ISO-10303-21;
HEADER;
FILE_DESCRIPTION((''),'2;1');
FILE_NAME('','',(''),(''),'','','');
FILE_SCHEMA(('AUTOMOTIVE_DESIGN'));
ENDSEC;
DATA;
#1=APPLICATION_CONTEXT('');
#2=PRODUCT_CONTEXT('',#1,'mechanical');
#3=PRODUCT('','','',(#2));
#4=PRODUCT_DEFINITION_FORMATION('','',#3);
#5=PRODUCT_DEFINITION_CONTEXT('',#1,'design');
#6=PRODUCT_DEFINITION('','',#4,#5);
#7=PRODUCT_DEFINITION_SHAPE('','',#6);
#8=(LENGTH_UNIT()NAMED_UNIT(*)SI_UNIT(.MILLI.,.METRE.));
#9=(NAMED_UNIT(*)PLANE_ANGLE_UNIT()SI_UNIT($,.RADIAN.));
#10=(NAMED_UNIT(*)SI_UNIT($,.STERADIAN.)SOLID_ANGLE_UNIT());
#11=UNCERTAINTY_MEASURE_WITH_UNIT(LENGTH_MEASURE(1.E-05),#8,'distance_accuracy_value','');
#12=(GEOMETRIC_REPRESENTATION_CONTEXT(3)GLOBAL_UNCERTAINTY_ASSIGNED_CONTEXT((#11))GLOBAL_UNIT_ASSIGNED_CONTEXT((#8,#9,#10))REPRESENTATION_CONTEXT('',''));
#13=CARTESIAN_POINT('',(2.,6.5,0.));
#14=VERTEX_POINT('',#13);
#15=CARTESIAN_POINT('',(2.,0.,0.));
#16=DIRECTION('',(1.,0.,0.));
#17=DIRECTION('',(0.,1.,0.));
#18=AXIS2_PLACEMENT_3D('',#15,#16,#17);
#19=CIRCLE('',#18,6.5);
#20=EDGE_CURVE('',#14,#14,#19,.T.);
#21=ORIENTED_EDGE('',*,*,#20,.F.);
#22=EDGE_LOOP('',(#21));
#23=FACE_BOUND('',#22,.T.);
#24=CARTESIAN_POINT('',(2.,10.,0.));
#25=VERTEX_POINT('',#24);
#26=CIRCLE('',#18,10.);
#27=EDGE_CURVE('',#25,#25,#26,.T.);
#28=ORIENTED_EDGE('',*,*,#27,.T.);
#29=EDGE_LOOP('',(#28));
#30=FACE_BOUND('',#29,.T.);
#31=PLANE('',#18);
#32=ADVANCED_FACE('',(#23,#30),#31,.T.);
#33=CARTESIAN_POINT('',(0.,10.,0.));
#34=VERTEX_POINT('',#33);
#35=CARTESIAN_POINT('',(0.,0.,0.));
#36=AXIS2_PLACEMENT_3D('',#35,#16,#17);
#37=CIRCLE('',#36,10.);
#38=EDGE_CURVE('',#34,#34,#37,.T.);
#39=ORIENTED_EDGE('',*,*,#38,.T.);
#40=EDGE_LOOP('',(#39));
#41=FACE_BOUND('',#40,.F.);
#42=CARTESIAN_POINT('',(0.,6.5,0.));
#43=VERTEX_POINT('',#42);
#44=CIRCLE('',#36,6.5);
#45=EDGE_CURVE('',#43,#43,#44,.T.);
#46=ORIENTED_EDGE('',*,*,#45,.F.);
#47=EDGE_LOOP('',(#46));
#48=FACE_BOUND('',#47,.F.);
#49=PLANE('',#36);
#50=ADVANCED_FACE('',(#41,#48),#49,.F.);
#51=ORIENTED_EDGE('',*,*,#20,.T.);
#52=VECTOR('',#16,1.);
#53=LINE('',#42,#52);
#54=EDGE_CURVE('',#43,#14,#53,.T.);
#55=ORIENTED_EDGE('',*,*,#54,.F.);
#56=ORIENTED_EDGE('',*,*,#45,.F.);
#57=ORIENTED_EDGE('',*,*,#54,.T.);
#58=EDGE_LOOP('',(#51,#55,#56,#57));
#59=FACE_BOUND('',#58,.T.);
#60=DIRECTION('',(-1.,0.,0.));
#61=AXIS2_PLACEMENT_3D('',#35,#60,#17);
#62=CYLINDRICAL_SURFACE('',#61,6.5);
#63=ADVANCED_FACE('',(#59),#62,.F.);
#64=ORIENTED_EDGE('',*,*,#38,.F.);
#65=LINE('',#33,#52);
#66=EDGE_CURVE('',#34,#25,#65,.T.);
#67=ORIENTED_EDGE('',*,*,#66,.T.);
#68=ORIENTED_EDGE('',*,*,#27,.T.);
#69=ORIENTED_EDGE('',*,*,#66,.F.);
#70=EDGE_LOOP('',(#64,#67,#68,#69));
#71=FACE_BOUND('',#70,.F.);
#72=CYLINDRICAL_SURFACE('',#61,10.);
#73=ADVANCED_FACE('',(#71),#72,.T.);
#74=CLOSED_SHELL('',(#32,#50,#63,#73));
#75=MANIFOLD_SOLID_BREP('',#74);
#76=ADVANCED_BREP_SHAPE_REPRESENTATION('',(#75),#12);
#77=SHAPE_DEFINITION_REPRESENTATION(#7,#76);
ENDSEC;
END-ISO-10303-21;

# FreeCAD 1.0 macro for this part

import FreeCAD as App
import Part
import Sketcher
from FreeCAD import Vector
Q = App.Units.Quantity

doc = App.newDocument("Part")
body = doc.addObject("PartDesign::Body", "Body")

# Sketch on YZ plane
sketch1 = doc.addObject("Sketcher::SketchObject", "Sketch")
body.addObject(sketch1)
sketch1.AttachmentSupport = (doc.YZ_Plane, [""])
sketch1.MapMode = "FlatFace"
sketch1.addGeometry([
    Part.Circle(Vector(0, 0, 0), Vector(0, 0, 1), 10),
    Part.Circle(Vector(0, 0, 0), Vector(0, 0, 1), 6.5),
], False)
sketch1.addConstraint([
    Sketcher.Constraint("Coincident", 0, 3, -1, 1),
    Sketcher.Constraint("Coincident", 1, 3, -1, 1),
    Sketcher.Constraint("Diameter", 0, Q("20 mm")),
    Sketcher.Constraint("Diameter", 1, Q("13 mm")),
])
pad1 = doc.addObject("PartDesign::Pad", "Pad")
body.addObject(pad1)
pad1.Profile = sketch1
pad1.Length = 2

doc.recompute()
